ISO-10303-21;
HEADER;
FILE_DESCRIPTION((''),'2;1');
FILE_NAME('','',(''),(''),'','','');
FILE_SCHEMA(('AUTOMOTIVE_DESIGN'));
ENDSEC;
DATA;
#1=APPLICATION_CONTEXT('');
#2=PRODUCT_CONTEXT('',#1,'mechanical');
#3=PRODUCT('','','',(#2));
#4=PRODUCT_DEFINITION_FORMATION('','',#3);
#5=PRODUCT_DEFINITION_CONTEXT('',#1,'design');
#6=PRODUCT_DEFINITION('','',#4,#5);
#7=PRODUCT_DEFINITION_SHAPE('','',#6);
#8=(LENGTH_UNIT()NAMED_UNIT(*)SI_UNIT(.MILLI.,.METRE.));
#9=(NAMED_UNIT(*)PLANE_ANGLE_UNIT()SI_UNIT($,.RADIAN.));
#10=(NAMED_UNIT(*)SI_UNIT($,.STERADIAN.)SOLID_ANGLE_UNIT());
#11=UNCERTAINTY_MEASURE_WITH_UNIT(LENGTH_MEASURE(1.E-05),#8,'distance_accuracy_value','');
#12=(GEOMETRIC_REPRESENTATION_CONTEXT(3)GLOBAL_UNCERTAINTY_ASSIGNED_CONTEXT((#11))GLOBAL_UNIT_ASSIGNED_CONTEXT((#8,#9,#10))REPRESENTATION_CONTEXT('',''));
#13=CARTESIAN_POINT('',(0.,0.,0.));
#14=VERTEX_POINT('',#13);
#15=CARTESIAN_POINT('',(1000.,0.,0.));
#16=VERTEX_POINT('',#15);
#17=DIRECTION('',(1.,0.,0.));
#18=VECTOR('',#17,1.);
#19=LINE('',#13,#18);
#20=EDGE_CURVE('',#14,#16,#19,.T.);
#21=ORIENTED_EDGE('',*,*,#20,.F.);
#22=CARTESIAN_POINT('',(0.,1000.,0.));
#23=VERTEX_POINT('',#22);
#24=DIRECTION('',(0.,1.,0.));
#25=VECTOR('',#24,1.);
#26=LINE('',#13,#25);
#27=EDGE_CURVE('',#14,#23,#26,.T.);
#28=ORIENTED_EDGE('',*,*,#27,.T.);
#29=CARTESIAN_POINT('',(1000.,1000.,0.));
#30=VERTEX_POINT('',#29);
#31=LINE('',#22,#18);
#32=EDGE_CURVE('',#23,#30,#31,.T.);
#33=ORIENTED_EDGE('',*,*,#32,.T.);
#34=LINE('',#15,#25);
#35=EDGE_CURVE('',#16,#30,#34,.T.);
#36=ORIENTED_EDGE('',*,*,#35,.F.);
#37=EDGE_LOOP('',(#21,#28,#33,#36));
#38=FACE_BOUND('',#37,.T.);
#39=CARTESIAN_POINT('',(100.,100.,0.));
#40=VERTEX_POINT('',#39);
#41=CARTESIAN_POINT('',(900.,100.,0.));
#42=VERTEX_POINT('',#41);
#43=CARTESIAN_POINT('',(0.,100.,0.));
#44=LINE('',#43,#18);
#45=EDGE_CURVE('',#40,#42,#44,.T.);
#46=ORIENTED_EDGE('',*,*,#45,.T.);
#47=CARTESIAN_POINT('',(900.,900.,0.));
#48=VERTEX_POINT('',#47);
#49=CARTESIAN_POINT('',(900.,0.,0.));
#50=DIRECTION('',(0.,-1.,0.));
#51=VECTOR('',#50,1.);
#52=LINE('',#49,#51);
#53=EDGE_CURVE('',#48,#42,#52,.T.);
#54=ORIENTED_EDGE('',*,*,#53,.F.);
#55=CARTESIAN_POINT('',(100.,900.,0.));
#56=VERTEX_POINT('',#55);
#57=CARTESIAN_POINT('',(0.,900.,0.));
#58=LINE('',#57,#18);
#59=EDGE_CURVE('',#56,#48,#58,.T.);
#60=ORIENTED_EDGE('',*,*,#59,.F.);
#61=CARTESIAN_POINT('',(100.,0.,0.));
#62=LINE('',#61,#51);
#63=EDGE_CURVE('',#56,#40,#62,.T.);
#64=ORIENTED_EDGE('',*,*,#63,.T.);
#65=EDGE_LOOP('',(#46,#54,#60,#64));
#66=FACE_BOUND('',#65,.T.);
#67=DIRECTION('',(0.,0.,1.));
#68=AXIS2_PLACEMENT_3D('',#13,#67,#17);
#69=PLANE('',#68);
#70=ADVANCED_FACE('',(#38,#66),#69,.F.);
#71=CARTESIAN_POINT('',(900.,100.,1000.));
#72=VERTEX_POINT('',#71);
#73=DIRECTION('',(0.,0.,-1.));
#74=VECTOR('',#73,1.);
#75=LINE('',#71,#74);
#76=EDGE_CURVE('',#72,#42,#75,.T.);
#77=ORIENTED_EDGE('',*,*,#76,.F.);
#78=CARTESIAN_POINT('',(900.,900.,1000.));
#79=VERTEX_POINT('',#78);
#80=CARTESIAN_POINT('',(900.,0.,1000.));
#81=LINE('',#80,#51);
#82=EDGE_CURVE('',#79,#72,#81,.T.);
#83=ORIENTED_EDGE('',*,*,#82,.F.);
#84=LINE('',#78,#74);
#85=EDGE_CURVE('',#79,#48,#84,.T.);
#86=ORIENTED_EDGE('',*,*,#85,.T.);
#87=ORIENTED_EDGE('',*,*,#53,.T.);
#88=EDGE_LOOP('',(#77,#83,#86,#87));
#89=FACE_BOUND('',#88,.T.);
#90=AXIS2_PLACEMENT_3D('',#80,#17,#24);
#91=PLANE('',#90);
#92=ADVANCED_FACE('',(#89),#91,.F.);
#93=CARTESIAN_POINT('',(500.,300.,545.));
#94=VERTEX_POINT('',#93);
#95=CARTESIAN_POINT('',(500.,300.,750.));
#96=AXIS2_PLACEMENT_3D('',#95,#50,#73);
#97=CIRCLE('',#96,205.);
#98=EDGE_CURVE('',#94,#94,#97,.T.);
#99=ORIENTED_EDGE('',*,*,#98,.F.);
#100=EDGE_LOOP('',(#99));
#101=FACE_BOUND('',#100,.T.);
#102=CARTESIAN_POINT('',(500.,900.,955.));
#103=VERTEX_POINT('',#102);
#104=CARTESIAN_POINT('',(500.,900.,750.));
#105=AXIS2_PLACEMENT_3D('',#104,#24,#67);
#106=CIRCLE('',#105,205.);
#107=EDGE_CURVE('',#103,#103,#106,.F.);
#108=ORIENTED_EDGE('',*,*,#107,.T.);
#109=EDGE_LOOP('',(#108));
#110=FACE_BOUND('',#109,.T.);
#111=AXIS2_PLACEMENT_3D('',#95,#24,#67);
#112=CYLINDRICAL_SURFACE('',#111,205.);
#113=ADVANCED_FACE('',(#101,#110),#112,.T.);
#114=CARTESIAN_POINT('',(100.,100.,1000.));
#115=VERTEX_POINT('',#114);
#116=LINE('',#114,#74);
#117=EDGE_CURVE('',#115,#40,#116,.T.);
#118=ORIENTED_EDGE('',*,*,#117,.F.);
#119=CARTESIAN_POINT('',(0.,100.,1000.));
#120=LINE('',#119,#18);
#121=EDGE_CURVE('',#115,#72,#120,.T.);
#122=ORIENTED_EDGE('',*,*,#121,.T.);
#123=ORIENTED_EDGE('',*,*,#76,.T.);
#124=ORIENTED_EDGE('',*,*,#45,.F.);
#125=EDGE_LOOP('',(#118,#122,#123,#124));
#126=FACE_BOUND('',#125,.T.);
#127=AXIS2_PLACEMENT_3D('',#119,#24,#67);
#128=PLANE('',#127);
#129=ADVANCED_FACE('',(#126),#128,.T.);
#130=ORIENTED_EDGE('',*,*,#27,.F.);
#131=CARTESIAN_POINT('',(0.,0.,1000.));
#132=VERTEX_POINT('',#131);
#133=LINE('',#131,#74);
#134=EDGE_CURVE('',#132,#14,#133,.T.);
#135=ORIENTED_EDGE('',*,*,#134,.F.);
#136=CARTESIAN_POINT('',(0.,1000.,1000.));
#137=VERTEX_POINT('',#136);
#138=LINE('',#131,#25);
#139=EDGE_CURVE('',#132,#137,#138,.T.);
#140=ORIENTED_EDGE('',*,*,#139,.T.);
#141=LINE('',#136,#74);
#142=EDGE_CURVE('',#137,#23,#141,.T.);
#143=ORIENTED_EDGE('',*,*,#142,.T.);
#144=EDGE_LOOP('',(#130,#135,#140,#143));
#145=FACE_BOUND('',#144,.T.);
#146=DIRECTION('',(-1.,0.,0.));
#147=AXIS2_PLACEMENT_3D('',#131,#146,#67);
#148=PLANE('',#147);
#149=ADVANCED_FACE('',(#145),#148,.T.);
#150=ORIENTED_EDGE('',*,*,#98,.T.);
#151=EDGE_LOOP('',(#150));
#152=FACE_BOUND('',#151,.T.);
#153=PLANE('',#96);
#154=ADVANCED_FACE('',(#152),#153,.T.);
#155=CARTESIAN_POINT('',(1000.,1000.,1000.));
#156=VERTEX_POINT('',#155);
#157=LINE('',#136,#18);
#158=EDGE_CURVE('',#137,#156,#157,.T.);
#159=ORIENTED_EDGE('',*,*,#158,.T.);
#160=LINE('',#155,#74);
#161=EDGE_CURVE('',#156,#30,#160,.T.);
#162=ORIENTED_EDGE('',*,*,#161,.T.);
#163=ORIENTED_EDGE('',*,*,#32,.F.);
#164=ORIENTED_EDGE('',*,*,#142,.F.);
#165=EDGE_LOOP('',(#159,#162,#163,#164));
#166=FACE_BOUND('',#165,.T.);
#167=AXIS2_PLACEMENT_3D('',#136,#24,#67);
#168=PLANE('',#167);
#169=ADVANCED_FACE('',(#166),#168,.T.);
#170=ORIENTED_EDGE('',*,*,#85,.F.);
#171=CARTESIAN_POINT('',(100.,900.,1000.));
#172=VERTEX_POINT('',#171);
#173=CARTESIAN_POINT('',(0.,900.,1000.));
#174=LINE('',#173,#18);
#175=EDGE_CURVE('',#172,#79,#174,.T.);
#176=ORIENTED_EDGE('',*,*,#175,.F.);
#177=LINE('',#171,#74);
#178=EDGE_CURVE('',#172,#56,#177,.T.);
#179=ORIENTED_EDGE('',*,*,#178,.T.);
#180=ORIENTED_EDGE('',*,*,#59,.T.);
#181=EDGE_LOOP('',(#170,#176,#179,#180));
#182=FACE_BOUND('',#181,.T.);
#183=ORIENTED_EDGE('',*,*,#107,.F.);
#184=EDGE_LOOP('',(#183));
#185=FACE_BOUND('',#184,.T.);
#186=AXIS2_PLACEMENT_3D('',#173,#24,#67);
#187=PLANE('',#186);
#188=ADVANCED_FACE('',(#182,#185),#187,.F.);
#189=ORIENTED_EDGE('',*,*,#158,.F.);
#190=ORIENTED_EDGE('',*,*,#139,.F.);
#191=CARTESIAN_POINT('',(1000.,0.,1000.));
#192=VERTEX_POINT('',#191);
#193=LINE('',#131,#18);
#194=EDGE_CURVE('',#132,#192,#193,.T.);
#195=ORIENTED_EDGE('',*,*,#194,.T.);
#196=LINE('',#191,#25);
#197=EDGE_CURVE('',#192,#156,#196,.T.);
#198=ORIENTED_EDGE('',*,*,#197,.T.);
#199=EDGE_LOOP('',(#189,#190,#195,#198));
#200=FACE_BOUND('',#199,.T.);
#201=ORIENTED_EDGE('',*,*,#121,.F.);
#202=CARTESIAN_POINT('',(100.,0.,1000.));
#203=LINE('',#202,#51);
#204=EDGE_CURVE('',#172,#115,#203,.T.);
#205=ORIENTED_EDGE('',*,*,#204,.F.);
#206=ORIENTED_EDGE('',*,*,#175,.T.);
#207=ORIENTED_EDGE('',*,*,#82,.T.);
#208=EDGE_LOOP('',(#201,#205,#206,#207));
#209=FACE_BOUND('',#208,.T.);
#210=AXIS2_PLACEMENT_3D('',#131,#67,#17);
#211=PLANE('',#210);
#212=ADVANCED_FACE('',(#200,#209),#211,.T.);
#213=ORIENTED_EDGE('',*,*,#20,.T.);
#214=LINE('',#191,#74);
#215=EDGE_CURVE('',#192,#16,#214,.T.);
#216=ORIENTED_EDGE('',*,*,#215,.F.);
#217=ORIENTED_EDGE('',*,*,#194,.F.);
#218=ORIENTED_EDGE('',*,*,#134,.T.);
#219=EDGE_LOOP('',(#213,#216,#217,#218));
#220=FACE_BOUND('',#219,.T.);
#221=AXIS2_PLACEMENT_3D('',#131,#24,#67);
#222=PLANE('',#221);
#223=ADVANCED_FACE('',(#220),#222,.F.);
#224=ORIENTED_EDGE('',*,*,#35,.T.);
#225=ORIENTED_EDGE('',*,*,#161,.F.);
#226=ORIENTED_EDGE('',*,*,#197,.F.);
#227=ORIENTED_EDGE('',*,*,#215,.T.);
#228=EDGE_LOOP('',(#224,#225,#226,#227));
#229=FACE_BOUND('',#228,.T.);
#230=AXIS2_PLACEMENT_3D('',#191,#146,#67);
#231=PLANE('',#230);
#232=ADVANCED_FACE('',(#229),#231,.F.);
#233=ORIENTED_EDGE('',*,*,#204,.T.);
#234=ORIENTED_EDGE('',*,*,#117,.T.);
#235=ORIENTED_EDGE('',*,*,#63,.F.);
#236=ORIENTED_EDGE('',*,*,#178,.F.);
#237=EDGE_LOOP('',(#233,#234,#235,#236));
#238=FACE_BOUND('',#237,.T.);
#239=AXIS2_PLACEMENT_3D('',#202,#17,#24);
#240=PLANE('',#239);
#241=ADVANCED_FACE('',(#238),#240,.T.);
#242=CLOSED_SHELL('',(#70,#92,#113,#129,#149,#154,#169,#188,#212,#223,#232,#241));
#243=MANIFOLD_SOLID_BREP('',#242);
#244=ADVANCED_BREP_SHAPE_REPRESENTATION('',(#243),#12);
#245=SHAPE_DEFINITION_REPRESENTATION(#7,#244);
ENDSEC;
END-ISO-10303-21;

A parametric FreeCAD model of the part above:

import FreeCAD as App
import Part
import Sketcher
from FreeCAD import Vector


def add_polygon(sketch, points):
    """Adds a closed chain of lines whose ends are joined by coincident constraints."""
    first, n = sketch.GeometryCount, len(points)
    for a, b in zip(points, points[1:] + points[:1]):
        sketch.addGeometry(Part.LineSegment(App.Vector(*a, 0), App.Vector(*b, 0)), False)
    for i in range(n):
        sketch.addConstraint(Sketcher.Constraint("Coincident", first + i, 2, first + (i + 1) % n, 1))

doc = App.newDocument("Part")
params = doc.addObject("Spreadsheet::Sheet", "Params")
for row, (alias, value) in enumerate([
    ("sketch1_width", "1000 mm"),
    ("sketch1_width2", "800 mm"),
    ("pad1_length", "1000 mm"),
    ("sketch2_diameter", "410 mm"),
    ("pad2_length", "600 mm"),
], start=1):
    params.set(f"A{row}", alias)
    params.set(f"B{row}", "=" + value)
    params.setAlias(f"B{row}", alias)

body = doc.addObject("PartDesign::Body", "Body")

sketch1 = doc.addObject("Sketcher::SketchObject", "Sketch")
body.addObject(sketch1)
sketch1.AttachmentSupport = (doc.XY_Plane, [""])
sketch1.MapMode = "FlatFace"
add_polygon(sketch1, [(0, 1000), (0, 0), (1000, 0), (1000, 1000)])
add_polygon(sketch1, [(900, 100), (100, 100), (100, 900), (900, 900)])
sketch1.addConstraint(Sketcher.Constraint("Vertical", 0))
sketch1.addConstraint(Sketcher.Constraint("Horizontal", 1))
sketch1.addConstraint(Sketcher.Constraint("Vertical", 2))
sketch1.addConstraint(Sketcher.Constraint("Horizontal", 3))
sketch1.addConstraint(Sketcher.Constraint("Horizontal", 4))
sketch1.addConstraint(Sketcher.Constraint("Vertical", 5))
sketch1.addConstraint(Sketcher.Constraint("Horizontal", 6))
sketch1.addConstraint(Sketcher.Constraint("Vertical", 7))
sketch1.addConstraint(Sketcher.Constraint("Coincident", 0, 2, -1, 1))
sketch1.addConstraint(Sketcher.Constraint("Equal", 3, 0))
sketch1.addConstraint(Sketcher.Constraint("Equal", 6, 5))
sketch1.addConstraint(Sketcher.Constraint("DistanceX", 1, 1, 1, 2, 1000.0))
sketch1.addConstraint(Sketcher.Constraint("DistanceX", 4, 2, 4, 1, 800.0))
sketch1.addConstraint(Sketcher.Constraint("DistanceX", -1, 1, 4, 2, 100.0))
sketch1.addConstraint(Sketcher.Constraint("DistanceY", -1, 1, 4, 2, 100.0))
sketch1.setExpression("Constraints[19]", "Params.sketch1_width")
sketch1.setExpression("Constraints[20]", "Params.sketch1_width2")
pad1 = doc.addObject("PartDesign::Pad", "Pad")
body.addObject(pad1)
pad1.Profile = sketch1
pad1.setExpression("Length", "Params.pad1_length")

sketch2 = doc.addObject("Sketcher::SketchObject", "Sketch001")
body.addObject(sketch2)
sketch2.AttachmentSupport = (doc.XZ_Plane, [""])
sketch2.MapMode = "FlatFace"
sketch2.AttachmentOffset = App.Placement(Vector(0, 0, -900), App.Rotation())
sketch2.addGeometry(Part.Circle(Vector(500, 750, 0), Vector(0, 0, 1), 205), False)
sketch2.addConstraint(Sketcher.Constraint("Diameter", 0, 410.0))
sketch2.addConstraint(Sketcher.Constraint("DistanceX", -1, 1, 0, 3, 500.0))
sketch2.addConstraint(Sketcher.Constraint("DistanceY", -1, 1, 0, 3, 750.0))
sketch2.setExpression("Constraints[0]", "Params.sketch2_diameter")
pad2 = doc.addObject("PartDesign::Pad", "Pad001")
body.addObject(pad2)
pad2.Profile = sketch2
pad2.setExpression("Length", "Params.pad2_length")

doc.recompute()
